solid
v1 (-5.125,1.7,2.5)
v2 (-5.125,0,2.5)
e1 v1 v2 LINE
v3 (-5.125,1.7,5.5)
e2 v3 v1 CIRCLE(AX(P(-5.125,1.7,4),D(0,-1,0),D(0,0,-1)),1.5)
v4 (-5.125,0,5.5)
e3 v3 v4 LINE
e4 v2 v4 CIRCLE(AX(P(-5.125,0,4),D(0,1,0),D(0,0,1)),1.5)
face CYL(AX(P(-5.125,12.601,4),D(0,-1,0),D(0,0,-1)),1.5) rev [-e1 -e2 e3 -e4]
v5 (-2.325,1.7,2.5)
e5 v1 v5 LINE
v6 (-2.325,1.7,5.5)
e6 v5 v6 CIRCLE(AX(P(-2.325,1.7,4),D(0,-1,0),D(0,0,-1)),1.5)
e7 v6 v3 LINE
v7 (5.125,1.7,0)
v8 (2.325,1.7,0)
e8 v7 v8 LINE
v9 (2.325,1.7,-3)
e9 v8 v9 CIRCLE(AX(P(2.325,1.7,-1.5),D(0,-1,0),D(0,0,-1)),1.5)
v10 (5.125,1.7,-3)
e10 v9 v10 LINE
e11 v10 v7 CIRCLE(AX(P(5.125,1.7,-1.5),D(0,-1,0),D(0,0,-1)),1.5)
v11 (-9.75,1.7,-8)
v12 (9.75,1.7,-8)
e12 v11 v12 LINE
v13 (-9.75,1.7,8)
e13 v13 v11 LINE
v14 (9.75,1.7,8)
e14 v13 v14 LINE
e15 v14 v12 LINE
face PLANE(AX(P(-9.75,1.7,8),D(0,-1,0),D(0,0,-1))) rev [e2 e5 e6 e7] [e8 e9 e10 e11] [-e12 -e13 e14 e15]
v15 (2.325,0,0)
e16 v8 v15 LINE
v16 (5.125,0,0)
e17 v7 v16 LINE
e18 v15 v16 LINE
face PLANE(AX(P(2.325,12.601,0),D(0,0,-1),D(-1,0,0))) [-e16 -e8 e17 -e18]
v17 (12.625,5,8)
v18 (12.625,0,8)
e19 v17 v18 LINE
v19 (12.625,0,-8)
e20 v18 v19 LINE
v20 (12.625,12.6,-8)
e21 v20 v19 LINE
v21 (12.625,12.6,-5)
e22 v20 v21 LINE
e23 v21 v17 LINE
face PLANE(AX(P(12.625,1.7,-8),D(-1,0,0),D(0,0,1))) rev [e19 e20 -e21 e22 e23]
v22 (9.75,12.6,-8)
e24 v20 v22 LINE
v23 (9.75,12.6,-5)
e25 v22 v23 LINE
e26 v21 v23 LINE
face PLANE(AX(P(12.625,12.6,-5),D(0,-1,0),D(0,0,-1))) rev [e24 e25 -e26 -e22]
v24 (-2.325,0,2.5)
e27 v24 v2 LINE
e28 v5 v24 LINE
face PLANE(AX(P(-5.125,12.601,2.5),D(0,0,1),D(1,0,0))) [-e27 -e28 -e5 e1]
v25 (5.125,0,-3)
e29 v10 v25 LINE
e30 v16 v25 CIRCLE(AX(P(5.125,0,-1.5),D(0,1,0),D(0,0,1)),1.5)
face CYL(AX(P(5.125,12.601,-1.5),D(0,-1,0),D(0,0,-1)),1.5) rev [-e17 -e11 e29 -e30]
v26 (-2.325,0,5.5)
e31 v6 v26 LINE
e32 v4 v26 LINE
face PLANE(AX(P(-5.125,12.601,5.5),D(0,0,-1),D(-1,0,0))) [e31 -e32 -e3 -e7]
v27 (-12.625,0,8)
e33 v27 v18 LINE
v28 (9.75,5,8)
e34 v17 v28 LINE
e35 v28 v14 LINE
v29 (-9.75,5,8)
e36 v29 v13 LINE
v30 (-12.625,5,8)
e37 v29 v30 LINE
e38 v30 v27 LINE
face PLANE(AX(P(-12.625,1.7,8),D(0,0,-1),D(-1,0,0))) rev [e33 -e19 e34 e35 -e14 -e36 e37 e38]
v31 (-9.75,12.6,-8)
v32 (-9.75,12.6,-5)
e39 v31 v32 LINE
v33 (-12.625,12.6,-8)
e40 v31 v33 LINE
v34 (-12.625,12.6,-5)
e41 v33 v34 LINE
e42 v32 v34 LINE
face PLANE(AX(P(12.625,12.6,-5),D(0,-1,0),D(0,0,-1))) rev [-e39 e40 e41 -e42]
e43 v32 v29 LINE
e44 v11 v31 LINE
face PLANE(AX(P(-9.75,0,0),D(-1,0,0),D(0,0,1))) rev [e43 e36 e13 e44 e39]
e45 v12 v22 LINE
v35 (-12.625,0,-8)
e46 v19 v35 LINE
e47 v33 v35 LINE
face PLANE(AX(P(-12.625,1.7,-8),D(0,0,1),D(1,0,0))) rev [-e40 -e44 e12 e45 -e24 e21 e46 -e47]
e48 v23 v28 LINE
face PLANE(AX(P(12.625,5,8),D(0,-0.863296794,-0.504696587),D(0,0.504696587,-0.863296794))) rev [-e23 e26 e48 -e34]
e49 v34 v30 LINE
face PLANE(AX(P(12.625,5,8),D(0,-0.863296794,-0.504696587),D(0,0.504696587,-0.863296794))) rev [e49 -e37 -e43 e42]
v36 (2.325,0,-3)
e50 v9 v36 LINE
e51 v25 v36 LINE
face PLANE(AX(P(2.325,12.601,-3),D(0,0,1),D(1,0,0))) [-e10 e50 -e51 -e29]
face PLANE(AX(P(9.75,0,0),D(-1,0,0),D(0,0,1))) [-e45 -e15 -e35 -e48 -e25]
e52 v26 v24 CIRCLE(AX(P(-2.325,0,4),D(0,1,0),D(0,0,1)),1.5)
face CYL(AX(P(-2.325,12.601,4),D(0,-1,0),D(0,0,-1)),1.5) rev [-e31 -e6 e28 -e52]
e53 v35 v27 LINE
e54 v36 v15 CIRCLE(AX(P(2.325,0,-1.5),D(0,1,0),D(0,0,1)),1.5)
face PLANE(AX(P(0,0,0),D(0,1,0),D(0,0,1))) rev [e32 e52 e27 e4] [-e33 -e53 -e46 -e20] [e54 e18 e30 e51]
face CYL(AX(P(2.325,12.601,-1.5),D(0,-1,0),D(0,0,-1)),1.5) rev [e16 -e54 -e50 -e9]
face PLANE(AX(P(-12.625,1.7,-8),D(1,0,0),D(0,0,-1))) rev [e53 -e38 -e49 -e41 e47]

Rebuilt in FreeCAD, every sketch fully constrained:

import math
import FreeCAD as App
import Part
import Sketcher

V = App.Vector

doc = App.newDocument("Part")
body = doc.addObject("PartDesign::Body", "Body")

# Sketch on XZ plane
sketch1 = body.newObject("Sketcher::SketchObject", "Sketch")
sketch1.AttachmentSupport = (doc.getObject("XZ_Plane"), [""])
sketch1.MapMode = "FlatFace"
sketch1.addGeometry([
    Part.LineSegment(V(-12.625, -8, 0), V(-12.625, 8, 0)),
    Part.LineSegment(V(-12.625, 8, 0), V(12.625, 8, 0)),
    Part.LineSegment(V(12.625, 8, 0), V(12.625, -8, 0)),
    Part.LineSegment(V(12.625, -8, 0), V(-12.625, -8, 0)),
], False)
sketch1.addConstraint([
    Sketcher.Constraint("Coincident", 0, 2, 1, 1),
    Sketcher.Constraint("Coincident", 1, 2, 2, 1),
    Sketcher.Constraint("Coincident", 2, 2, 3, 1),
    Sketcher.Constraint("Coincident", 3, 2, 0, 1),
    Sketcher.Constraint("Vertical", 0),
    Sketcher.Constraint("Horizontal", 1),
    Sketcher.Constraint("Vertical", 2),
    Sketcher.Constraint("Horizontal", 3),
    Sketcher.Constraint("Symmetric", 0, 2, 2, 2, -1, 1),
    Sketcher.Constraint("DistanceY", 0, 1, 0, 2, 16.0),
    Sketcher.Constraint("DistanceX", 1, 1, 1, 2, 25.25),
])
pad1 = body.newObject("PartDesign::Pad", "Pad")
pad1.Profile = sketch1
pad1.Length = 1.7
pad1.Reversed = True

# Sketch on YZ plane
sketch2 = body.newObject("Sketcher::SketchObject", "Sketch001")
sketch2.AttachmentSupport = (doc.getObject("YZ_Plane"), [""])
sketch2.MapMode = "FlatFace"
sketch2.addGeometry([
    Part.LineSegment(V(1.7, 8, 0), V(1.7, -8, 0)),  # 0
    Part.LineSegment(V(1.7, -8, 0), V(12.6, -8, 0)),  # 1
    Part.LineSegment(V(12.6, -8, 0), V(12.6, -5, 0)),  # 2
    Part.LineSegment(V(12.6, -5, 0), V(5, 8, 0)),  # 3
    Part.LineSegment(V(5, 8, 0), V(1.7, 8, 0)),  # 4
], False)
sketch2.addConstraint([
    Sketcher.Constraint("Coincident", 0, 2, 1, 1),
    Sketcher.Constraint("Coincident", 1, 2, 2, 1),
    Sketcher.Constraint("Coincident", 2, 2, 3, 1),
    Sketcher.Constraint("Coincident", 3, 2, 4, 1),
    Sketcher.Constraint("Coincident", 4, 2, 0, 1),
    Sketcher.Constraint("Vertical", 0),
    Sketcher.Constraint("Horizontal", 1),
    Sketcher.Constraint("Vertical", 2),
    Sketcher.Constraint("Horizontal", 4),
    Sketcher.Constraint("DistanceY", 0, 2, 0, 1, 16.0),
    Sketcher.Constraint("DistanceY", 2, 1, 2, 2, 3.0),
    Sketcher.Constraint("DistanceX", 1, 1, 1, 2, 10.9),
    Sketcher.Constraint("DistanceX", 4, 2, 4, 1, 3.3),
    Sketcher.Constraint("DistanceY", 0, 2, -1, 1, 8.0),
    Sketcher.Constraint("DistanceX", -1, 1, 3, 2, 5.0),
])
pad2 = body.newObject("PartDesign::Pad", "Pad001")
pad2.Profile = sketch2
pad2.Length = 25.25
pad2.Midplane = True

# Sketch on YZ plane
sketch3 = body.newObject("Sketcher::SketchObject", "Sketch002")
sketch3.AttachmentSupport = (doc.getObject("YZ_Plane"), [""])
sketch3.MapMode = "FlatFace"
sketch3.addGeometry([
    Part.LineSegment(V(1.7, 8, 0), V(1.7, -8, 0)),  # 0
    Part.LineSegment(V(1.7, -8, 0), V(12.6, -8, 0)),  # 1
    Part.LineSegment(V(12.6, -8, 0), V(12.6, -5, 0)),  # 2
    Part.LineSegment(V(12.6, -5, 0), V(5, 8, 0)),  # 3
    Part.LineSegment(V(5, 8, 0), V(1.7, 8, 0)),  # 4
], False)
sketch3.addConstraint([
    Sketcher.Constraint("Coincident", 0, 2, 1, 1),
    Sketcher.Constraint("Coincident", 1, 2, 2, 1),
    Sketcher.Constraint("Coincident", 2, 2, 3, 1),
    Sketcher.Constraint("Coincident", 3, 2, 4, 1),
    Sketcher.Constraint("Coincident", 4, 2, 0, 1),
    Sketcher.Constraint("Vertical", 0),
    Sketcher.Constraint("Horizontal", 1),
    Sketcher.Constraint("Vertical", 2),
    Sketcher.Constraint("Horizontal", 4),
    Sketcher.Constraint("DistanceY", 0, 2, 0, 1, 16.0),
    Sketcher.Constraint("DistanceY", 2, 1, 2, 2, 3.0),
    Sketcher.Constraint("DistanceX", 1, 1, 1, 2, 10.9),
    Sketcher.Constraint("DistanceX", 4, 2, 4, 1, 3.3),
    Sketcher.Constraint("DistanceY", 0, 2, -1, 1, 8.0),
    Sketcher.Constraint("DistanceX", -1, 1, 3, 2, 5.0),
])
pocket1 = body.newObject("PartDesign::Pocket", "Pocket")
pocket1.Profile = sketch3
pocket1.Length = 19.5
pocket1.Midplane = True

# Sketch on XZ plane
sketch4 = body.newObject("Sketcher::SketchObject", "Sketch003")
sketch4.AttachmentSupport = (doc.getObject("XZ_Plane"), [""])
sketch4.MapMode = "FlatFace"
sketch4.addGeometry([
    Part.LineSegment(V(-2.325, 2.5, 0), V(-5.125, 2.5, 0)),
    Part.ArcOfCircle(Part.Circle(V(-5.125, 4, 0), V(0, 0, 1), 1.5), math.radians(90), math.radians(270)),
    Part.LineSegment(V(-5.125, 5.5, 0), V(-2.325, 5.5, 0)),
    Part.ArcOfCircle(Part.Circle(V(-2.325, 4, 0), V(0, 0, 1), 1.5), math.radians(-90), math.radians(90)),
], False)
sketch4.addConstraint([
    Sketcher.Constraint("Tangent", 0, 2, 1, 2),
    Sketcher.Constraint("Tangent", 1, 1, 2, 1),
    Sketcher.Constraint("Tangent", 2, 2, 3, 2),
    Sketcher.Constraint("Tangent", 3, 1, 0, 1),
    Sketcher.Constraint("Horizontal", 0),
    Sketcher.Constraint("Horizontal", 2),
    Sketcher.Constraint("Radius", 1, 1.5),
    Sketcher.Constraint("DistanceX", 0, 2, 0, 1, 2.8),
    Sketcher.Constraint("DistanceY", -1, 1, 1, 3, 4.0),
    Sketcher.Constraint("DistanceX", 1, 3, -1, 1, 5.125),
])
pocket2 = body.newObject("PartDesign::Pocket", "Pocket001")
pocket2.Profile = sketch4
pocket2.Type = "UpToFirst"

# Sketch on XZ plane
sketch5 = body.newObject("Sketcher::SketchObject", "Sketch004")
sketch5.AttachmentSupport = (doc.getObject("XZ_Plane"), [""])
sketch5.MapMode = "FlatFace"
sketch5.addGeometry([
    Part.LineSegment(V(2.325, 0, 0), V(5.125, 0, 0)),
    Part.ArcOfCircle(Part.Circle(V(5.125, -1.5, 0), V(0, 0, 1), 1.5), math.radians(-90), math.radians(90)),
    Part.LineSegment(V(5.125, -3, 0), V(2.325, -3, 0)),
    Part.ArcOfCircle(Part.Circle(V(2.325, -1.5, 0), V(0, 0, 1), 1.5), math.radians(90), math.radians(270)),
], False)
sketch5.addConstraint([
    Sketcher.Constraint("Tangent", 0, 2, 1, 2),
    Sketcher.Constraint("Tangent", 1, 1, 2, 1),
    Sketcher.Constraint("Tangent", 2, 2, 3, 2),
    Sketcher.Constraint("Tangent", 3, 1, 0, 1),
    Sketcher.Constraint("Horizontal", 0),
    Sketcher.Constraint("Horizontal", 2),
    Sketcher.Constraint("PointOnObject", 0, 2, -1),
    Sketcher.Constraint("Radius", 1, 1.5),
    Sketcher.Constraint("DistanceX", 0, 1, 0, 2, 2.8),
    Sketcher.Constraint("DistanceX", -1, 1, 1, 3, 5.125),
])
pocket3 = body.newObject("PartDesign::Pocket", "Pocket002")
pocket3.Profile = sketch5
pocket3.Type = "UpToFirst"

doc.recompute()
